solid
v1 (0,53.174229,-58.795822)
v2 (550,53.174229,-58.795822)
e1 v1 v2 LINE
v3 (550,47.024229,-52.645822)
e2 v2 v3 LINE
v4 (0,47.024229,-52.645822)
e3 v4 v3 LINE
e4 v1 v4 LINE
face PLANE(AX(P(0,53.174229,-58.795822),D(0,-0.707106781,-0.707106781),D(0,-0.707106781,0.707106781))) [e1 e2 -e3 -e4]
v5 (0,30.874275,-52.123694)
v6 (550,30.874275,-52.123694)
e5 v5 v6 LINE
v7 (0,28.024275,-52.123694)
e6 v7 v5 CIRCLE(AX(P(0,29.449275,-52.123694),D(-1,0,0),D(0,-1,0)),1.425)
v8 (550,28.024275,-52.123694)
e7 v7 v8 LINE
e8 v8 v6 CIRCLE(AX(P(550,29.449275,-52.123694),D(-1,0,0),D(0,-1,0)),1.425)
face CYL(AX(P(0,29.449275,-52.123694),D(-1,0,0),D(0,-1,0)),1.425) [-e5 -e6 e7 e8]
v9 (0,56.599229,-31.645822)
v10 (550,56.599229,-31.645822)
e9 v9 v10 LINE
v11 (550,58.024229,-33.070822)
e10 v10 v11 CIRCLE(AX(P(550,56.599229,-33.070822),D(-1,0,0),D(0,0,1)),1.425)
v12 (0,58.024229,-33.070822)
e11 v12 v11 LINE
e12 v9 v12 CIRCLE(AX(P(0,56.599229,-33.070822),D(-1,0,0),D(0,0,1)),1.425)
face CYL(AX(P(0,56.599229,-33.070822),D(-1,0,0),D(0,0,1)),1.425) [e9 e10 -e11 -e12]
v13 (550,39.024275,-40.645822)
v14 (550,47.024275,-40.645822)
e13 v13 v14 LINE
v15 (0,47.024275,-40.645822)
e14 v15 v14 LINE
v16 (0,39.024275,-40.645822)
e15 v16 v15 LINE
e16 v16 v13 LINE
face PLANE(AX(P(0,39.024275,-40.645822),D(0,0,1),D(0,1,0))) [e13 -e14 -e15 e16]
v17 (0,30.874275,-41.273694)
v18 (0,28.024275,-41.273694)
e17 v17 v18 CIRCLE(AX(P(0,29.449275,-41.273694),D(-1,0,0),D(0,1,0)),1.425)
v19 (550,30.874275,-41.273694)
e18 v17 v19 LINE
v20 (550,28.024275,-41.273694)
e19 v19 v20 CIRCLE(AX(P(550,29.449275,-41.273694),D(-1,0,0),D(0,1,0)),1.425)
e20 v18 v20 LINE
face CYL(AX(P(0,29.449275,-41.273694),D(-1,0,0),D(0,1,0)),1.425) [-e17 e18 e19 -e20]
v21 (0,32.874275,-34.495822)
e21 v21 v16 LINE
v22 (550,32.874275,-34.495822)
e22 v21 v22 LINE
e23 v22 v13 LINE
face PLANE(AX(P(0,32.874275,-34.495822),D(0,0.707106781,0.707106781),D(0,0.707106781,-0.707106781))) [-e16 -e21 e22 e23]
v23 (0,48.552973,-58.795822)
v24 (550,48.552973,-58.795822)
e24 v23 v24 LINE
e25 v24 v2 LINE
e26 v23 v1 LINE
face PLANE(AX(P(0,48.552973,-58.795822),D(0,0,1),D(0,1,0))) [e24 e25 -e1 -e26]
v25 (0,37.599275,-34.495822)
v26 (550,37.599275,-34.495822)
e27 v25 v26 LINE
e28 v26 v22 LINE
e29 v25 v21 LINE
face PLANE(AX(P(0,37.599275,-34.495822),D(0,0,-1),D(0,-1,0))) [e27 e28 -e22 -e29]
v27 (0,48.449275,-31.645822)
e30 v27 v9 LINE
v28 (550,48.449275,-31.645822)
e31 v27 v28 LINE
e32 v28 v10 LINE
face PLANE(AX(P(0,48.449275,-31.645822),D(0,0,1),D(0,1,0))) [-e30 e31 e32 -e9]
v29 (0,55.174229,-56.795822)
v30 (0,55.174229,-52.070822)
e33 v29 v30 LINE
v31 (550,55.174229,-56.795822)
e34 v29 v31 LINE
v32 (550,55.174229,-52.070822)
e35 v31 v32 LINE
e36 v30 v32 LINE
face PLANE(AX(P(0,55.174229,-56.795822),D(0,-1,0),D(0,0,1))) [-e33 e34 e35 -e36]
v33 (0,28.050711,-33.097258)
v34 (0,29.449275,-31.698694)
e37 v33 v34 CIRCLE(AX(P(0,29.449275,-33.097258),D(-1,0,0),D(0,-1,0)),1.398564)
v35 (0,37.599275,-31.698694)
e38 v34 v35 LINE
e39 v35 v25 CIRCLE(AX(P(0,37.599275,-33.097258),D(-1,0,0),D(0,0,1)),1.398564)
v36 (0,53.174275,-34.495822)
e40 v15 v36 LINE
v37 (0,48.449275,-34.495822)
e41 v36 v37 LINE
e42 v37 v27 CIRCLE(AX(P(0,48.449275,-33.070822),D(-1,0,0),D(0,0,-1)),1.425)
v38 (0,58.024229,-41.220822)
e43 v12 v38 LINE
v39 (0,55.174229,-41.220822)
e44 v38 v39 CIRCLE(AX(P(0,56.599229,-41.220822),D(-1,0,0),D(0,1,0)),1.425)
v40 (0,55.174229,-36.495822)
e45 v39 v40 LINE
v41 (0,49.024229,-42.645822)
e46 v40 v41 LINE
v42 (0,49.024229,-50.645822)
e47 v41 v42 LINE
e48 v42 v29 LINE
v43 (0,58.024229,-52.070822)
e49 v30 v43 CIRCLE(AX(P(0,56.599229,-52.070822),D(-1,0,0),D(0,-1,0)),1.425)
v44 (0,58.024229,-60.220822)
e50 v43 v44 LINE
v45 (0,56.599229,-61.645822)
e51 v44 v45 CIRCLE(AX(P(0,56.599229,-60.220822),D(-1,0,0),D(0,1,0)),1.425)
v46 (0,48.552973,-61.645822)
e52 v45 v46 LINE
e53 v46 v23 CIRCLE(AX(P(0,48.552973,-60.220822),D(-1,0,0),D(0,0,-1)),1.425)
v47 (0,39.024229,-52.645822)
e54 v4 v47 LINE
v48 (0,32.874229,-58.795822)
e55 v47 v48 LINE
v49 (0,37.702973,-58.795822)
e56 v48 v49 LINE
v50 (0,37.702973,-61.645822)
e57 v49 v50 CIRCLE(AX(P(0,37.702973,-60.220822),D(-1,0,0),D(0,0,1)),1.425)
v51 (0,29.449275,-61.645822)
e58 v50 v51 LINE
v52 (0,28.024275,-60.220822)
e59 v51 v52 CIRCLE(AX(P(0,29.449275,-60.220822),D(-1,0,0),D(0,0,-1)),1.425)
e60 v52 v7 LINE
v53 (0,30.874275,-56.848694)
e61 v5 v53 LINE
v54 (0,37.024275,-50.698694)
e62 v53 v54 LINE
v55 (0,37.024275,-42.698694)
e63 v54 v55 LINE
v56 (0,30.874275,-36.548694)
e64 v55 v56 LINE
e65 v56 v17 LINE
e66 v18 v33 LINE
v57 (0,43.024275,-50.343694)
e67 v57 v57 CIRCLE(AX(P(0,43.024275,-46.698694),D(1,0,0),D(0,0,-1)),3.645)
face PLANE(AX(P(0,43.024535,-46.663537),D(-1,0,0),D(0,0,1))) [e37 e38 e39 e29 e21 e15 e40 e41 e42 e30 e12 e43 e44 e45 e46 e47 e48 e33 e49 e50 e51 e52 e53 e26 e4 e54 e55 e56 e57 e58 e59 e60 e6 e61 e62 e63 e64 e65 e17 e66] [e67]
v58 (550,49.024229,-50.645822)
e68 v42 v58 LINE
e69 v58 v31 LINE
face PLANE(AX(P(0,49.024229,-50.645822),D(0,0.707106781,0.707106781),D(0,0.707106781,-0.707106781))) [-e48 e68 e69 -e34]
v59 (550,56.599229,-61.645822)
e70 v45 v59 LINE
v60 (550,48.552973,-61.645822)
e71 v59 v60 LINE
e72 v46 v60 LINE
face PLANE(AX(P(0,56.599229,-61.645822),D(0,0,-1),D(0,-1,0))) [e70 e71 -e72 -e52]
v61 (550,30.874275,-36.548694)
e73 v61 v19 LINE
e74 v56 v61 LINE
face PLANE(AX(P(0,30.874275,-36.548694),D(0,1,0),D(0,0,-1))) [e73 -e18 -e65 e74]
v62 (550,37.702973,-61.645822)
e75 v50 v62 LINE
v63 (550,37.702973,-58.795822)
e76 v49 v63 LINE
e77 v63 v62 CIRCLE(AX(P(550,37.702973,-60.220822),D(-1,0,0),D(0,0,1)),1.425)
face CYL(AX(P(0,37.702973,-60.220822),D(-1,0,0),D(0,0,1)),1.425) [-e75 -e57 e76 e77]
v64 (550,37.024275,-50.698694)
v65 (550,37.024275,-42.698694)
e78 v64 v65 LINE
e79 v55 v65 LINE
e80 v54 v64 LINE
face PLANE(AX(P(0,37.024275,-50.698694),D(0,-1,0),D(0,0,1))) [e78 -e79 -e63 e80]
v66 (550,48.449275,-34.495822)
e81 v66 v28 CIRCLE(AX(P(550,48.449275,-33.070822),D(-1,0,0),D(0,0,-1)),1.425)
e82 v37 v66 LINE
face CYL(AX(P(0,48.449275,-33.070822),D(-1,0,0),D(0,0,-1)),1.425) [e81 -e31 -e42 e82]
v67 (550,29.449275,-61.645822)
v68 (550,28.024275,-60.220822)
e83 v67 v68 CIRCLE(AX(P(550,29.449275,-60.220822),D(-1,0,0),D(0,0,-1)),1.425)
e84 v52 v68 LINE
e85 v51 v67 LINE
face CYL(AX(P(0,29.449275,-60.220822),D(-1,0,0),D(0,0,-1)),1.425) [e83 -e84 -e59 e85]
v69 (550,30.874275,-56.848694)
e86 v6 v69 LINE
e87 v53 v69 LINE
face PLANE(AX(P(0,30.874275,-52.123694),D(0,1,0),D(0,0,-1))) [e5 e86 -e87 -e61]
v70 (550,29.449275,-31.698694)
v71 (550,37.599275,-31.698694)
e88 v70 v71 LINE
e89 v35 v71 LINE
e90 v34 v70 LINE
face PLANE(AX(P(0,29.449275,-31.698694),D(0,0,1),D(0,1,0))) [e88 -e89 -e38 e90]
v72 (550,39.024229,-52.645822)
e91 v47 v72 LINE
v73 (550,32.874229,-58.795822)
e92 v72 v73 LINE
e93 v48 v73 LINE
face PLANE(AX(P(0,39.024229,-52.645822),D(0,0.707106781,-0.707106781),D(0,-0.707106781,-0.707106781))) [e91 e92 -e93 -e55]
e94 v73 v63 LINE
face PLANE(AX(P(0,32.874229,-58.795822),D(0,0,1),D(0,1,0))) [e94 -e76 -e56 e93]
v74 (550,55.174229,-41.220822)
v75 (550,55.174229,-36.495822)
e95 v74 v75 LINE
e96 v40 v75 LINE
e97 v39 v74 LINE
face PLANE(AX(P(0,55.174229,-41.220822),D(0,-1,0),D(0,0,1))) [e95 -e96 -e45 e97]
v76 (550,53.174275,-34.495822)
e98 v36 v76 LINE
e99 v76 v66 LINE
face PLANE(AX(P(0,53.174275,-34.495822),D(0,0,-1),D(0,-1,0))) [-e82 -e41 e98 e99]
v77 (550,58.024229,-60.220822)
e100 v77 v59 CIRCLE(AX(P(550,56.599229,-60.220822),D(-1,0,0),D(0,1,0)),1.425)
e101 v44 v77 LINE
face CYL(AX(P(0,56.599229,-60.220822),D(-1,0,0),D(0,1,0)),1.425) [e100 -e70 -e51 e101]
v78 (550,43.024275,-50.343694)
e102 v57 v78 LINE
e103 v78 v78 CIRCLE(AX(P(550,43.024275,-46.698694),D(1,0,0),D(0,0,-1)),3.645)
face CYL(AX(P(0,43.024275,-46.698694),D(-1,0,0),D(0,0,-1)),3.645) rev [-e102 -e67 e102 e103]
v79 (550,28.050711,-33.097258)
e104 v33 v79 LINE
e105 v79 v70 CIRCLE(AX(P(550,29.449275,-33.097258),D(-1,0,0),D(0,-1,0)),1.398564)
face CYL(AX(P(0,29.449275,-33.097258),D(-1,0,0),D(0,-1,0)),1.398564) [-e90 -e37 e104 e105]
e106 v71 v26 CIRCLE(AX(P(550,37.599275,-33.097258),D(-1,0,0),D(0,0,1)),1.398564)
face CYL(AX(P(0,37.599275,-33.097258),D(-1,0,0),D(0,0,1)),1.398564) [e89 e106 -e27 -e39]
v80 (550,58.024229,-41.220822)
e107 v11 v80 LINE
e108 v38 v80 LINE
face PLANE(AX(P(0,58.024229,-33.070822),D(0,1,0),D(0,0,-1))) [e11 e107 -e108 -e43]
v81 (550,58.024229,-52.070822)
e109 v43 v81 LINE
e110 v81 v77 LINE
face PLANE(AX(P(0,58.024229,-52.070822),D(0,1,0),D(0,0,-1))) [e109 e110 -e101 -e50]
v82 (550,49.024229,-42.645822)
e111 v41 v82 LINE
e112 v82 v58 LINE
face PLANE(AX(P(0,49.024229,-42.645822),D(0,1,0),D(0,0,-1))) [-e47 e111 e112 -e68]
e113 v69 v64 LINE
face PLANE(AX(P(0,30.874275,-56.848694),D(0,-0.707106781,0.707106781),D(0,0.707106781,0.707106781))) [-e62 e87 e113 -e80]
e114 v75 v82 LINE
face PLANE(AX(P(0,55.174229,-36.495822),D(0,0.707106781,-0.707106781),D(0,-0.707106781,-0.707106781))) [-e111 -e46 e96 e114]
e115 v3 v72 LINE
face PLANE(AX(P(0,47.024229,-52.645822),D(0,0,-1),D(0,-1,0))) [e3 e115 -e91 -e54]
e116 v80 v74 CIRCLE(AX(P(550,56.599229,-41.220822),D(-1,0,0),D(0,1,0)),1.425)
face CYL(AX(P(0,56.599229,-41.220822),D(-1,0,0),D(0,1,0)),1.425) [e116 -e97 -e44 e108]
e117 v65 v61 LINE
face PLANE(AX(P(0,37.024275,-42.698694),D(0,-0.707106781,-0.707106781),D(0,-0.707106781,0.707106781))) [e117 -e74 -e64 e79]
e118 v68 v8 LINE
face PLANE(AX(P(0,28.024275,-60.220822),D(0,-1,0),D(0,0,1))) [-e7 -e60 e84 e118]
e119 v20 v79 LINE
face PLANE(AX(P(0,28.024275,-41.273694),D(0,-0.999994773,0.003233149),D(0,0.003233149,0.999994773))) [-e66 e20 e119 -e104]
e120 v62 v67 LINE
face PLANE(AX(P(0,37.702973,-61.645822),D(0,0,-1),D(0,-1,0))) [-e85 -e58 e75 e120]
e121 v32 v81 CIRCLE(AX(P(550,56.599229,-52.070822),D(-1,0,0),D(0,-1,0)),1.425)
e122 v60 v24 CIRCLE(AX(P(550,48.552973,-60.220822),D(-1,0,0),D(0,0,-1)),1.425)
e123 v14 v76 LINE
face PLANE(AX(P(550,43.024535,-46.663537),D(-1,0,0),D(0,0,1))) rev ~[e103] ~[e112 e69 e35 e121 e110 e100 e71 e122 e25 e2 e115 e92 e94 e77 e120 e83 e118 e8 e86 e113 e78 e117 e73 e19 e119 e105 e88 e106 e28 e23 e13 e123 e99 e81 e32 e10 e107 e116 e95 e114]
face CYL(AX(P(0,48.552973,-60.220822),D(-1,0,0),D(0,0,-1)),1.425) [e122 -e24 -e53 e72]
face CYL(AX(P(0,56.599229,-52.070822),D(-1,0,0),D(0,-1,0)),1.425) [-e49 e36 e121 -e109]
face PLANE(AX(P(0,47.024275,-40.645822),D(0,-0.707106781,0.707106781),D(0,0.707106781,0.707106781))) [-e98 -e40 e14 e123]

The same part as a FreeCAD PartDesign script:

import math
import FreeCAD as App
import Part
import Sketcher
Q = App.Units.Quantity

doc = App.newDocument("Part")
body = doc.addObject("PartDesign::Body", "Body")

# Sketch on YZ plane
sketch1 = doc.addObject("Sketcher::SketchObject", "Sketch")
body.addObject(sketch1)
sketch1.AttachmentSupport = (doc.YZ_Plane, [""])
sketch1.MapMode = "FlatFace"
sketch1.addGeometry(Part.LineSegment(App.Vector(30.9, -56.8, 0), App.Vector(30.9, -52.1, 0)), False)
sketch1.addGeometry(Part.ArcOfCircle(Part.Circle(App.Vector(29.4, -52.1, 0), App.Vector(0, 0, 1), 1.4), math.radians(0), math.radians(180)), False)
sketch1.addGeometry(Part.LineSegment(App.Vector(28, -52.1, 0), App.Vector(28, -60.2, 0)), False)
sketch1.addGeometry(Part.ArcOfCircle(Part.Circle(App.Vector(29.4, -60.2, 0), App.Vector(0, 0, 1), 1.4), math.radians(-180), math.radians(-90)), False)
sketch1.addGeometry(Part.LineSegment(App.Vector(29.4, -61.6, 0), App.Vector(37.7, -61.6, 0)), False)
sketch1.addGeometry(Part.ArcOfCircle(Part.Circle(App.Vector(37.7, -60.2, 0), App.Vector(0, 0, 1), 1.4), math.radians(-90), math.radians(90)), False)
sketch1.addGeometry(Part.LineSegment(App.Vector(37.7, -58.8, 0), App.Vector(32.9, -58.8, 0)), False)
sketch1.addGeometry(Part.LineSegment(App.Vector(32.9, -58.8, 0), App.Vector(39, -52.6, 0)), False)
sketch1.addGeometry(Part.LineSegment(App.Vector(39, -52.6, 0), App.Vector(47, -52.6, 0)), False)
sketch1.addGeometry(Part.LineSegment(App.Vector(47, -52.6, 0), App.Vector(53.2, -58.8, 0)), False)
sketch1.addGeometry(Part.LineSegment(App.Vector(53.2, -58.8, 0), App.Vector(48.6, -58.8, 0)), False)
sketch1.addGeometry(Part.ArcOfCircle(Part.Circle(App.Vector(48.6, -60.2, 0), App.Vector(0, 0, 1), 1.4), math.radians(90), math.radians(270)), False)
sketch1.addGeometry(Part.LineSegment(App.Vector(48.6, -61.6, 0), App.Vector(56.6, -61.6, 0)), False)
sketch1.addGeometry(Part.ArcOfCircle(Part.Circle(App.Vector(56.6, -60.2, 0), App.Vector(0, 0, 1), 1.4), math.radians(-90), math.radians(0)), False)
sketch1.addGeometry(Part.LineSegment(App.Vector(58, -60.2, 0), App.Vector(58, -52.1, 0)), False)
sketch1.addGeometry(Part.ArcOfCircle(Part.Circle(App.Vector(56.6, -52.1, 0), App.Vector(0, 0, 1), 1.4), math.radians(0), math.radians(180)), False)
sketch1.addGeometry(Part.LineSegment(App.Vector(55.2, -52.1, 0), App.Vector(55.2, -56.8, 0)), False)
sketch1.addGeometry(Part.LineSegment(App.Vector(55.2, -56.8, 0), App.Vector(49, -50.6, 0)), False)
sketch1.addGeometry(Part.LineSegment(App.Vector(49, -50.6, 0), App.Vector(49, -42.6, 0)), False)
sketch1.addGeometry(Part.LineSegment(App.Vector(49, -42.6, 0), App.Vector(55.2, -36.5, 0)), False)
sketch1.addGeometry(Part.LineSegment(App.Vector(55.2, -36.5, 0), App.Vector(55.2, -41.2, 0)), False)
sketch1.addGeometry(Part.ArcOfCircle(Part.Circle(App.Vector(56.6, -41.2, 0), App.Vector(0, 0, 1), 1.4), math.radians(180), math.radians(360)), False)
sketch1.addGeometry(Part.LineSegment(App.Vector(58, -41.2, 0), App.Vector(58, -33.1, 0)), False)
sketch1.addGeometry(Part.ArcOfCircle(Part.Circle(App.Vector(56.6, -33.1, 0), App.Vector(0, 0, 1), 1.4), math.radians(0), math.radians(90)), False)
sketch1.addGeometry(Part.LineSegment(App.Vector(56.6, -31.6, 0), App.Vector(48.4, -31.6, 0)), False)
sketch1.addGeometry(Part.ArcOfCircle(Part.Circle(App.Vector(48.4, -33.1, 0), App.Vector(0, 0, 1), 1.4), math.radians(90), math.radians(270)), False)
sketch1.addGeometry(Part.LineSegment(App.Vector(48.4, -34.5, 0), App.Vector(53.2, -34.5, 0)), False)
sketch1.addGeometry(Part.LineSegment(App.Vector(53.2, -34.5, 0), App.Vector(47, -40.6, 0)), False)
sketch1.addGeometry(Part.LineSegment(App.Vector(47, -40.6, 0), App.Vector(39, -40.6, 0)), False)
sketch1.addGeometry(Part.LineSegment(App.Vector(39, -40.6, 0), App.Vector(32.9, -34.5, 0)), False)
sketch1.addGeometry(Part.LineSegment(App.Vector(32.9, -34.5, 0), App.Vector(37.6, -34.5, 0)), False)
sketch1.addGeometry(Part.ArcOfCircle(Part.Circle(App.Vector(37.6, -33.1, 0), App.Vector(0, 0, 1), 1.4), math.radians(-90), math.radians(90)), False)
sketch1.addGeometry(Part.LineSegment(App.Vector(37.6, -31.7, 0), App.Vector(29.4, -31.7, 0)), False)
sketch1.addGeometry(Part.ArcOfCircle(Part.Circle(App.Vector(29.4, -33.1, 0), App.Vector(0, 0, 1), 1.4), math.radians(90), math.radians(180)), False)
sketch1.addGeometry(Part.LineSegment(App.Vector(28.1, -33.1, 0), App.Vector(28, -41.3, 0)), False)
sketch1.addGeometry(Part.ArcOfCircle(Part.Circle(App.Vector(29.4, -41.3, 0), App.Vector(0, 0, 1), 1.4), math.radians(180), math.radians(360)), False)
sketch1.addGeometry(Part.LineSegment(App.Vector(30.9, -41.3, 0), App.Vector(30.9, -36.5, 0)), False)
sketch1.addGeometry(Part.LineSegment(App.Vector(30.9, -36.5, 0), App.Vector(37, -42.7, 0)), False)
sketch1.addGeometry(Part.LineSegment(App.Vector(37, -42.7, 0), App.Vector(37, -50.7, 0)), False)
sketch1.addGeometry(Part.LineSegment(App.Vector(37, -50.7, 0), App.Vector(30.9, -56.8, 0)), False)
sketch1.addGeometry(Part.Circle(App.Vector(43, -46.7, 0), App.Vector(0, 0, 1), 3.6), False)
sketch1.addConstraint(Sketcher.Constraint("Tangent", 0, 2, 1, 1))
sketch1.addConstraint(Sketcher.Constraint("Tangent", 1, 2, 2, 1))
sketch1.addConstraint(Sketcher.Constraint("Tangent", 2, 2, 3, 1))
sketch1.addConstraint(Sketcher.Constraint("Tangent", 3, 2, 4, 1))
sketch1.addConstraint(Sketcher.Constraint("Tangent", 4, 2, 5, 1))
sketch1.addConstraint(Sketcher.Constraint("Tangent", 5, 2, 6, 1))
sketch1.addConstraint(Sketcher.Constraint("Coincident", 6, 2, 7, 1))
sketch1.addConstraint(Sketcher.Constraint("Coincident", 7, 2, 8, 1))
sketch1.addConstraint(Sketcher.Constraint("Coincident", 8, 2, 9, 1))
sketch1.addConstraint(Sketcher.Constraint("Coincident", 9, 2, 10, 1))
sketch1.addConstraint(Sketcher.Constraint("Tangent", 10, 2, 11, 1))
sketch1.addConstraint(Sketcher.Constraint("Tangent", 11, 2, 12, 1))
sketch1.addConstraint(Sketcher.Constraint("Tangent", 12, 2, 13, 1))
sketch1.addConstraint(Sketcher.Constraint("Tangent", 13, 2, 14, 1))
sketch1.addConstraint(Sketcher.Constraint("Tangent", 14, 2, 15, 1))
sketch1.addConstraint(Sketcher.Constraint("Tangent", 15, 2, 16, 1))
sketch1.addConstraint(Sketcher.Constraint("Coincident", 16, 2, 17, 1))
sketch1.addConstraint(Sketcher.Constraint("Coincident", 17, 2, 18, 1))
sketch1.addConstraint(Sketcher.Constraint("Coincident", 18, 2, 19, 1))
sketch1.addConstraint(Sketcher.Constraint("Coincident", 19, 2, 20, 1))
sketch1.addConstraint(Sketcher.Constraint("Tangent", 20, 2, 21, 1))
sketch1.addConstraint(Sketcher.Constraint("Tangent", 21, 2, 22, 1))
sketch1.addConstraint(Sketcher.Constraint("Tangent", 22, 2, 23, 1))
sketch1.addConstraint(Sketcher.Constraint("Tangent", 23, 2, 24, 1))
sketch1.addConstraint(Sketcher.Constraint("Tangent", 24, 2, 25, 1))
sketch1.addConstraint(Sketcher.Constraint("Tangent", 25, 2, 26, 1))
sketch1.addConstraint(Sketcher.Constraint("Coincident", 26, 2, 27, 1))
sketch1.addConstraint(Sketcher.Constraint("Coincident", 27, 2, 28, 1))
sketch1.addConstraint(Sketcher.Constraint("Coincident", 28, 2, 29, 1))
sketch1.addConstraint(Sketcher.Constraint("Coincident", 29, 2, 30, 1))
sketch1.addConstraint(Sketcher.Constraint("Tangent", 30, 2, 31, 1))
sketch1.addConstraint(Sketcher.Constraint("Tangent", 31, 2, 32, 1))
sketch1.addConstraint(Sketcher.Constraint("Tangent", 32, 2, 33, 1))
sketch1.addConstraint(Sketcher.Constraint("Coincident", 33, 2, 34, 1))
sketch1.addConstraint(Sketcher.Constraint("Coincident", 34, 2, 35, 1))
sketch1.addConstraint(Sketcher.Constraint("Tangent", 35, 2, 36, 1))
sketch1.addConstraint(Sketcher.Constraint("Coincident", 36, 2, 37, 1))
sketch1.addConstraint(Sketcher.Constraint("Coincident", 37, 2, 38, 1))
sketch1.addConstraint(Sketcher.Constraint("Coincident", 38, 2, 39, 1))
sketch1.addConstraint(Sketcher.Constraint("Coincident", 39, 2, 0, 1))
sketch1.addConstraint(Sketcher.Constraint("Vertical", 0))
sketch1.addConstraint(Sketcher.Constraint("Vertical", 2))
sketch1.addConstraint(Sketcher.Constraint("Horizontal", 4))
sketch1.addConstraint(Sketcher.Constraint("Horizontal", 6))
sketch1.addConstraint(Sketcher.Constraint("Horizontal", 8))
sketch1.addConstraint(Sketcher.Constraint("Horizontal", 10))
sketch1.addConstraint(Sketcher.Constraint("Horizontal", 12))
sketch1.addConstraint(Sketcher.Constraint("Vertical", 14))
sketch1.addConstraint(Sketcher.Constraint("Vertical", 16))
sketch1.addConstraint(Sketcher.Constraint("Vertical", 18))
sketch1.addConstraint(Sketcher.Constraint("Vertical", 20))
sketch1.addConstraint(Sketcher.Constraint("Vertical", 22))
sketch1.addConstraint(Sketcher.Constraint("Horizontal", 24))
sketch1.addConstraint(Sketcher.Constraint("Horizontal", 26))
sketch1.addConstraint(Sketcher.Constraint("Horizontal", 28))
sketch1.addConstraint(Sketcher.Constraint("Horizontal", 30))
sketch1.addConstraint(Sketcher.Constraint("Horizontal", 32))
sketch1.addConstraint(Sketcher.Constraint("Vertical", 36))
sketch1.addConstraint(Sketcher.Constraint("Vertical", 38))
sketch1.addConstraint(Sketcher.Constraint("Equal", 1, 3))
sketch1.addConstraint(Sketcher.Constraint("Equal", 3, 5))
sketch1.addConstraint(Sketcher.Constraint("Equal", 5, 11))
sketch1.addConstraint(Sketcher.Constraint("Equal", 11, 13))
sketch1.addConstraint(Sketcher.Constraint("Equal", 13, 15))
sketch1.addConstraint(Sketcher.Constraint("Equal", 15, 21))
sketch1.addConstraint(Sketcher.Constraint("Equal", 21, 23))
sketch1.addConstraint(Sketcher.Constraint("Equal", 23, 25))
sketch1.addConstraint(Sketcher.Constraint("Equal", 31, 33))
sketch1.addConstraint(Sketcher.Constraint("Equal", 25, 35))
sketch1.addConstraint(Sketcher.Constraint("Perpendicular", 7, 9))
sketch1.addConstraint(Sketcher.Constraint("Parallel", 9, 17))
sketch1.addConstraint(Sketcher.Constraint("Perpendicular", 17, 19))
sketch1.addConstraint(Sketcher.Constraint("Parallel", 19, 27))
sketch1.addConstraint(Sketcher.Constraint("Perpendicular", 27, 29))
sketch1.addConstraint(Sketcher.Constraint("Parallel", 29, 37))
sketch1.addConstraint(Sketcher.Constraint("Perpendicular", 37, 39))
sketch1.addConstraint(Sketcher.Constraint("Horizontal", 5, 3, 11, 3))
sketch1.addConstraint(Sketcher.Constraint("Horizontal", 26, 2, 29, 2))
sketch1.addConstraint(Sketcher.Constraint("Horizontal", 31, 3, 33, 2))
sketch1.addConstraint(Sketcher.Constraint("Horizontal", 35, 3, 34, 2))
sketch1.addConstraint(Sketcher.Constraint("Vertical", 15, 3, 21, 3))
sketch1.addConstraint(Sketcher.Constraint("Vertical", 3, 3, 33, 3))
sketch1.addConstraint(Sketcher.Constraint("Vertical", 33, 3, 35, 3))
sketch1.addConstraint(Sketcher.Constraint("Equal", 8, 28))
sketch1.addConstraint(Sketcher.Constraint("Equal", 26, 30))
sketch1.addConstraint(Sketcher.Constraint("Equal", 30, 0))
sketch1.addConstraint(Sketcher.Constraint("Equal", 32, 14))
sketch1.addConstraint(Sketcher.Constraint("Equal", 0, 16))
sketch1.addConstraint(Sketcher.Constraint("Equal", 28, 18))
sketch1.addConstraint(Sketcher.Constraint("Equal", 16, 20))
sketch1.addConstraint(Sketcher.Constraint("Equal", 14, 22))
sketch1.addConstraint(Sketcher.Constraint("Equal", 20, 36))
sketch1.addConstraint(Sketcher.Constraint("Equal", 18, 38))
sketch1.addConstraint(Sketcher.Constraint("Equal", 7, 9))
sketch1.addConstraint(Sketcher.Constraint("Equal", 9, 17))
sketch1.addConstraint(Sketcher.Constraint("Equal", 19, 27))
sketch1.addConstraint(Sketcher.Constraint("Equal", 29, 37))
sketch1.addConstraint(Sketcher.Constraint("Diameter", 40, Q("7.29 mm")))
sketch1.addConstraint(Sketcher.Constraint("DistanceX", 8, 1, 8, 2, Q("8 mm")))
sketch1.addConstraint(Sketcher.Constraint("Radius", 1, Q("1.425 mm")))
sketch1.addConstraint(Sketcher.Constraint("DistanceY", 13, 3, 21, 3, Q("19 mm")))
sketch1.addConstraint(Sketcher.Constraint("DistanceY", 11, 2, 8, 2, Q("9 mm")))
sketch1.addConstraint(Sketcher.Constraint("DistanceX", 9, 2, 15, 2, Q("2 mm")))
sketch1.addConstraint(Sketcher.Constraint("DistanceY", 9, 2, 16, 2, Q("2 mm")))
sketch1.addConstraint(Sketcher.Constraint("DistanceX", 40, 3, 27, 2, Q("4 mm")))
sketch1.addConstraint(Sketcher.Constraint("DistanceY", 40, 3, 37, 2, Q("4 mm")))
sketch1.addConstraint(Sketcher.Constraint("DistanceX", 5, 3, 11, 3, Q("10.85 mm")))
sketch1.addConstraint(Sketcher.Constraint("Radius", 31, Q("1.398564 mm")))
sketch1.addConstraint(Sketcher.Constraint("DistanceY", 34, 2, 32, 2, Q("9.575 mm")))
sketch1.addConstraint(Sketcher.Constraint("DistanceX", 4, 1, 4, 2, Q("8.253697 mm")))
sketch1.addConstraint(Sketcher.Constraint("DistanceX", 6, 2, 6, 1, Q("4.828744 mm")))
sketch1.addConstraint(Sketcher.Constraint("DistanceX", -1, 1, 13, 3, Q("56.599229 mm")))
sketch1.addConstraint(Sketcher.Constraint("DistanceY", 1, 3, -1, 1, Q("52.123694 mm")))
pad1 = doc.addObject("PartDesign::Pad", "Pad")
body.addObject(pad1)
pad1.Profile = sketch1
pad1.Length = 550

doc.recompute()
